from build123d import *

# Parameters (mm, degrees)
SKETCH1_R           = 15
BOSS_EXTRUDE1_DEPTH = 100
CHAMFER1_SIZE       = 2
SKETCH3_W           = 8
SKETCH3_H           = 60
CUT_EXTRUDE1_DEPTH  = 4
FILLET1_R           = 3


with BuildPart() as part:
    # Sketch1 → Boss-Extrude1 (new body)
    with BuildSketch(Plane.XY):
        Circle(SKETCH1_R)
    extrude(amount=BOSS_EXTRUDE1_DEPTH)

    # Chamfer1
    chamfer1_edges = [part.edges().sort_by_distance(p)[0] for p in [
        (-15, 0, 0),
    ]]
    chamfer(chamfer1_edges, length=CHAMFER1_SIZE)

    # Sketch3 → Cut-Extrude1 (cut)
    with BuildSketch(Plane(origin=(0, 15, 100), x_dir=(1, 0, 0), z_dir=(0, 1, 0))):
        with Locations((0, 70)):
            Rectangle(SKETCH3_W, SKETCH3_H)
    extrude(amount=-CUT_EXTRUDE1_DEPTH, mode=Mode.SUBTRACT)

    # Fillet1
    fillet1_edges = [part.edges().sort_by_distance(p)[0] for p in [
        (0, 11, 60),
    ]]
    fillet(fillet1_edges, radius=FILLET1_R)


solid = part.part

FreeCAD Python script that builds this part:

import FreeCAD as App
import Part
import Sketcher
Q = App.Units.Quantity


def edges_at(feature, points):
    """Names of the edges that pass closest to the given points."""
    edges = feature.Shape.Edges
    near = lambda p: min(range(len(edges)), key=lambda i: edges[i].distToShape(Part.Vertex(*p))[0])
    return sorted({f"Edge{near(p) + 1}" for p in points})

doc = App.newDocument("Part")
params = doc.addObject("Spreadsheet::Sheet", "Params")
for row, (alias, value) in enumerate([
    ("sketch1_diameter", "30 mm"),
    ("pad1_length", "100 mm"),
    ("chamfer_size", "2 mm"),
    ("sketch2_width", "8 mm"),
    ("sketch2_height", "60 mm"),
    ("pocket1_length", "4 mm"),
    ("fillet_radius", "3 mm"),
], start=1):
    params.set(f"A{row}", alias)
    params.set(f"B{row}", "=" + value)
    params.setAlias(f"B{row}", alias)

body = doc.addObject("PartDesign::Body", "Body")

# Sketch on XY plane
sketch1 = body.newObject("Sketcher::SketchObject", "Sketch")
sketch1.AttachmentSupport = (doc.getObject("XY_Plane"), [""])
sketch1.MapMode = "FlatFace"
sketch1.addGeometry(Part.Circle(App.Vector(0, 0, 0), App.Vector(0, 0, 1), 15), False)
sketch1.addConstraint([
    Sketcher.Constraint("Coincident", 0, 3, -1, 1),
    Sketcher.Constraint("Diameter", 0, Q("30 mm")),
])
sketch1.setExpression("Constraints[1]", "Params.sketch1_diameter")
pad1 = body.newObject("PartDesign::Pad", "Pad")
pad1.Profile = sketch1
pad1.setExpression("Length", "Params.pad1_length")
doc.recompute()

chamfer = body.newObject("PartDesign::Chamfer", "Chamfer")
chamfer.Base = (pad1, edges_at(pad1, [(-15, 0, 0)]))
chamfer.setExpression("Size", "Params.chamfer_size")

# Sketch on XZ plane
sketch2 = body.newObject("Sketcher::SketchObject", "Sketch001")
sketch2.AttachmentSupport = (doc.getObject("XZ_Plane"), [""])
sketch2.MapMode = "FlatFace"
sketch2.AttachmentOffset = App.Placement(App.Vector(0, 0, -15), App.Rotation())
sketch2.addGeometry([
    Part.LineSegment(App.Vector(-4, 0, 0), App.Vector(-4, 60, 0)),
    Part.LineSegment(App.Vector(-4, 60, 0), App.Vector(4, 60, 0)),
    Part.LineSegment(App.Vector(4, 60, 0), App.Vector(4, 0, 0)),
    Part.LineSegment(App.Vector(4, 0, 0), App.Vector(-4, 0, 0)),
], False)
sketch2.addConstraint([
    Sketcher.Constraint("Coincident", 0, 2, 1, 1),
    Sketcher.Constraint("Coincident", 1, 2, 2, 1),
    Sketcher.Constraint("Coincident", 2, 2, 3, 1),
    Sketcher.Constraint("Coincident", 3, 2, 0, 1),
    Sketcher.Constraint("Vertical", 0),
    Sketcher.Constraint("Horizontal", 1),
    Sketcher.Constraint("Vertical", 2),
    Sketcher.Constraint("Horizontal", 3),
    Sketcher.Constraint("Symmetric", 2, 2, 3, 2, -1, 1),
    Sketcher.Constraint("DistanceX", 1, 1, 1, 2, Q("8 mm")),
    Sketcher.Constraint("DistanceY", 0, 1, 0, 2, Q("60 mm")),
])
sketch2.setExpression("Constraints[9]", "Params.sketch2_width")
sketch2.setExpression("Constraints[10]", "Params.sketch2_height")
pocket1 = body.newObject("PartDesign::Pocket", "Pocket")
pocket1.Profile = sketch2
pocket1.setExpression("Length", "Params.pocket1_length")
pocket1.Reversed = True
doc.recompute()

fillet = body.newObject("PartDesign::Fillet", "Fillet")
fillet.Base = (pocket1, edges_at(pocket1, [(0, 11, 60)]))
fillet.setExpression("Radius", "Params.fillet_radius")

doc.recompute()
